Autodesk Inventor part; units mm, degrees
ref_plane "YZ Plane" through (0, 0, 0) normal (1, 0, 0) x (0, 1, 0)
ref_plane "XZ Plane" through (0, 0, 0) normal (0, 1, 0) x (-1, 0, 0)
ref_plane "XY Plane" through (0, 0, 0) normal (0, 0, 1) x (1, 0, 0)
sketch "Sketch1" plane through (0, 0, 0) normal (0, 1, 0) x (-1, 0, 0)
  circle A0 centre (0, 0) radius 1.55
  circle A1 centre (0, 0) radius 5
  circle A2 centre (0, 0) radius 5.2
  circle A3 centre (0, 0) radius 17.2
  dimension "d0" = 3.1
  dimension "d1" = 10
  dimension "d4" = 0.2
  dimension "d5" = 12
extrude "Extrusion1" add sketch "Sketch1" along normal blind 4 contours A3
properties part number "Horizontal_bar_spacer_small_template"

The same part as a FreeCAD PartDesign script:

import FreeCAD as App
import Part
import Sketcher
from FreeCAD import Vector
Q = App.Units.Quantity

doc = App.newDocument("Part")
body = doc.addObject("PartDesign::Body", "Body")

# Sketch on XZ plane
sketch1 = body.newObject("Sketcher::SketchObject", "Sketch")
sketch1.AttachmentSupport = (doc.getObject("XZ_Plane"), [""])
sketch1.MapMode = "FlatFace"
sketch1.addGeometry([
    Part.Circle(Vector(0, 0, 0), Vector(0, 0, 1), 17),
    Part.Circle(Vector(0, 0, 0), Vector(0, 0, 1), 5),
], False)
sketch1.addConstraint([
    Sketcher.Constraint("Coincident", 0, 3, -1, 1),
    Sketcher.Constraint("Coincident", 1, 3, -1, 1),
    Sketcher.Constraint("Diameter", 0, Q("34.4 mm")),
    Sketcher.Constraint("Diameter", 1, Q("10.4 mm")),
])
pad1 = body.newObject("PartDesign::Pad", "Pad")
pad1.Profile = sketch1
pad1.Length = 4
pad1.Reversed = True

doc.recompute()
